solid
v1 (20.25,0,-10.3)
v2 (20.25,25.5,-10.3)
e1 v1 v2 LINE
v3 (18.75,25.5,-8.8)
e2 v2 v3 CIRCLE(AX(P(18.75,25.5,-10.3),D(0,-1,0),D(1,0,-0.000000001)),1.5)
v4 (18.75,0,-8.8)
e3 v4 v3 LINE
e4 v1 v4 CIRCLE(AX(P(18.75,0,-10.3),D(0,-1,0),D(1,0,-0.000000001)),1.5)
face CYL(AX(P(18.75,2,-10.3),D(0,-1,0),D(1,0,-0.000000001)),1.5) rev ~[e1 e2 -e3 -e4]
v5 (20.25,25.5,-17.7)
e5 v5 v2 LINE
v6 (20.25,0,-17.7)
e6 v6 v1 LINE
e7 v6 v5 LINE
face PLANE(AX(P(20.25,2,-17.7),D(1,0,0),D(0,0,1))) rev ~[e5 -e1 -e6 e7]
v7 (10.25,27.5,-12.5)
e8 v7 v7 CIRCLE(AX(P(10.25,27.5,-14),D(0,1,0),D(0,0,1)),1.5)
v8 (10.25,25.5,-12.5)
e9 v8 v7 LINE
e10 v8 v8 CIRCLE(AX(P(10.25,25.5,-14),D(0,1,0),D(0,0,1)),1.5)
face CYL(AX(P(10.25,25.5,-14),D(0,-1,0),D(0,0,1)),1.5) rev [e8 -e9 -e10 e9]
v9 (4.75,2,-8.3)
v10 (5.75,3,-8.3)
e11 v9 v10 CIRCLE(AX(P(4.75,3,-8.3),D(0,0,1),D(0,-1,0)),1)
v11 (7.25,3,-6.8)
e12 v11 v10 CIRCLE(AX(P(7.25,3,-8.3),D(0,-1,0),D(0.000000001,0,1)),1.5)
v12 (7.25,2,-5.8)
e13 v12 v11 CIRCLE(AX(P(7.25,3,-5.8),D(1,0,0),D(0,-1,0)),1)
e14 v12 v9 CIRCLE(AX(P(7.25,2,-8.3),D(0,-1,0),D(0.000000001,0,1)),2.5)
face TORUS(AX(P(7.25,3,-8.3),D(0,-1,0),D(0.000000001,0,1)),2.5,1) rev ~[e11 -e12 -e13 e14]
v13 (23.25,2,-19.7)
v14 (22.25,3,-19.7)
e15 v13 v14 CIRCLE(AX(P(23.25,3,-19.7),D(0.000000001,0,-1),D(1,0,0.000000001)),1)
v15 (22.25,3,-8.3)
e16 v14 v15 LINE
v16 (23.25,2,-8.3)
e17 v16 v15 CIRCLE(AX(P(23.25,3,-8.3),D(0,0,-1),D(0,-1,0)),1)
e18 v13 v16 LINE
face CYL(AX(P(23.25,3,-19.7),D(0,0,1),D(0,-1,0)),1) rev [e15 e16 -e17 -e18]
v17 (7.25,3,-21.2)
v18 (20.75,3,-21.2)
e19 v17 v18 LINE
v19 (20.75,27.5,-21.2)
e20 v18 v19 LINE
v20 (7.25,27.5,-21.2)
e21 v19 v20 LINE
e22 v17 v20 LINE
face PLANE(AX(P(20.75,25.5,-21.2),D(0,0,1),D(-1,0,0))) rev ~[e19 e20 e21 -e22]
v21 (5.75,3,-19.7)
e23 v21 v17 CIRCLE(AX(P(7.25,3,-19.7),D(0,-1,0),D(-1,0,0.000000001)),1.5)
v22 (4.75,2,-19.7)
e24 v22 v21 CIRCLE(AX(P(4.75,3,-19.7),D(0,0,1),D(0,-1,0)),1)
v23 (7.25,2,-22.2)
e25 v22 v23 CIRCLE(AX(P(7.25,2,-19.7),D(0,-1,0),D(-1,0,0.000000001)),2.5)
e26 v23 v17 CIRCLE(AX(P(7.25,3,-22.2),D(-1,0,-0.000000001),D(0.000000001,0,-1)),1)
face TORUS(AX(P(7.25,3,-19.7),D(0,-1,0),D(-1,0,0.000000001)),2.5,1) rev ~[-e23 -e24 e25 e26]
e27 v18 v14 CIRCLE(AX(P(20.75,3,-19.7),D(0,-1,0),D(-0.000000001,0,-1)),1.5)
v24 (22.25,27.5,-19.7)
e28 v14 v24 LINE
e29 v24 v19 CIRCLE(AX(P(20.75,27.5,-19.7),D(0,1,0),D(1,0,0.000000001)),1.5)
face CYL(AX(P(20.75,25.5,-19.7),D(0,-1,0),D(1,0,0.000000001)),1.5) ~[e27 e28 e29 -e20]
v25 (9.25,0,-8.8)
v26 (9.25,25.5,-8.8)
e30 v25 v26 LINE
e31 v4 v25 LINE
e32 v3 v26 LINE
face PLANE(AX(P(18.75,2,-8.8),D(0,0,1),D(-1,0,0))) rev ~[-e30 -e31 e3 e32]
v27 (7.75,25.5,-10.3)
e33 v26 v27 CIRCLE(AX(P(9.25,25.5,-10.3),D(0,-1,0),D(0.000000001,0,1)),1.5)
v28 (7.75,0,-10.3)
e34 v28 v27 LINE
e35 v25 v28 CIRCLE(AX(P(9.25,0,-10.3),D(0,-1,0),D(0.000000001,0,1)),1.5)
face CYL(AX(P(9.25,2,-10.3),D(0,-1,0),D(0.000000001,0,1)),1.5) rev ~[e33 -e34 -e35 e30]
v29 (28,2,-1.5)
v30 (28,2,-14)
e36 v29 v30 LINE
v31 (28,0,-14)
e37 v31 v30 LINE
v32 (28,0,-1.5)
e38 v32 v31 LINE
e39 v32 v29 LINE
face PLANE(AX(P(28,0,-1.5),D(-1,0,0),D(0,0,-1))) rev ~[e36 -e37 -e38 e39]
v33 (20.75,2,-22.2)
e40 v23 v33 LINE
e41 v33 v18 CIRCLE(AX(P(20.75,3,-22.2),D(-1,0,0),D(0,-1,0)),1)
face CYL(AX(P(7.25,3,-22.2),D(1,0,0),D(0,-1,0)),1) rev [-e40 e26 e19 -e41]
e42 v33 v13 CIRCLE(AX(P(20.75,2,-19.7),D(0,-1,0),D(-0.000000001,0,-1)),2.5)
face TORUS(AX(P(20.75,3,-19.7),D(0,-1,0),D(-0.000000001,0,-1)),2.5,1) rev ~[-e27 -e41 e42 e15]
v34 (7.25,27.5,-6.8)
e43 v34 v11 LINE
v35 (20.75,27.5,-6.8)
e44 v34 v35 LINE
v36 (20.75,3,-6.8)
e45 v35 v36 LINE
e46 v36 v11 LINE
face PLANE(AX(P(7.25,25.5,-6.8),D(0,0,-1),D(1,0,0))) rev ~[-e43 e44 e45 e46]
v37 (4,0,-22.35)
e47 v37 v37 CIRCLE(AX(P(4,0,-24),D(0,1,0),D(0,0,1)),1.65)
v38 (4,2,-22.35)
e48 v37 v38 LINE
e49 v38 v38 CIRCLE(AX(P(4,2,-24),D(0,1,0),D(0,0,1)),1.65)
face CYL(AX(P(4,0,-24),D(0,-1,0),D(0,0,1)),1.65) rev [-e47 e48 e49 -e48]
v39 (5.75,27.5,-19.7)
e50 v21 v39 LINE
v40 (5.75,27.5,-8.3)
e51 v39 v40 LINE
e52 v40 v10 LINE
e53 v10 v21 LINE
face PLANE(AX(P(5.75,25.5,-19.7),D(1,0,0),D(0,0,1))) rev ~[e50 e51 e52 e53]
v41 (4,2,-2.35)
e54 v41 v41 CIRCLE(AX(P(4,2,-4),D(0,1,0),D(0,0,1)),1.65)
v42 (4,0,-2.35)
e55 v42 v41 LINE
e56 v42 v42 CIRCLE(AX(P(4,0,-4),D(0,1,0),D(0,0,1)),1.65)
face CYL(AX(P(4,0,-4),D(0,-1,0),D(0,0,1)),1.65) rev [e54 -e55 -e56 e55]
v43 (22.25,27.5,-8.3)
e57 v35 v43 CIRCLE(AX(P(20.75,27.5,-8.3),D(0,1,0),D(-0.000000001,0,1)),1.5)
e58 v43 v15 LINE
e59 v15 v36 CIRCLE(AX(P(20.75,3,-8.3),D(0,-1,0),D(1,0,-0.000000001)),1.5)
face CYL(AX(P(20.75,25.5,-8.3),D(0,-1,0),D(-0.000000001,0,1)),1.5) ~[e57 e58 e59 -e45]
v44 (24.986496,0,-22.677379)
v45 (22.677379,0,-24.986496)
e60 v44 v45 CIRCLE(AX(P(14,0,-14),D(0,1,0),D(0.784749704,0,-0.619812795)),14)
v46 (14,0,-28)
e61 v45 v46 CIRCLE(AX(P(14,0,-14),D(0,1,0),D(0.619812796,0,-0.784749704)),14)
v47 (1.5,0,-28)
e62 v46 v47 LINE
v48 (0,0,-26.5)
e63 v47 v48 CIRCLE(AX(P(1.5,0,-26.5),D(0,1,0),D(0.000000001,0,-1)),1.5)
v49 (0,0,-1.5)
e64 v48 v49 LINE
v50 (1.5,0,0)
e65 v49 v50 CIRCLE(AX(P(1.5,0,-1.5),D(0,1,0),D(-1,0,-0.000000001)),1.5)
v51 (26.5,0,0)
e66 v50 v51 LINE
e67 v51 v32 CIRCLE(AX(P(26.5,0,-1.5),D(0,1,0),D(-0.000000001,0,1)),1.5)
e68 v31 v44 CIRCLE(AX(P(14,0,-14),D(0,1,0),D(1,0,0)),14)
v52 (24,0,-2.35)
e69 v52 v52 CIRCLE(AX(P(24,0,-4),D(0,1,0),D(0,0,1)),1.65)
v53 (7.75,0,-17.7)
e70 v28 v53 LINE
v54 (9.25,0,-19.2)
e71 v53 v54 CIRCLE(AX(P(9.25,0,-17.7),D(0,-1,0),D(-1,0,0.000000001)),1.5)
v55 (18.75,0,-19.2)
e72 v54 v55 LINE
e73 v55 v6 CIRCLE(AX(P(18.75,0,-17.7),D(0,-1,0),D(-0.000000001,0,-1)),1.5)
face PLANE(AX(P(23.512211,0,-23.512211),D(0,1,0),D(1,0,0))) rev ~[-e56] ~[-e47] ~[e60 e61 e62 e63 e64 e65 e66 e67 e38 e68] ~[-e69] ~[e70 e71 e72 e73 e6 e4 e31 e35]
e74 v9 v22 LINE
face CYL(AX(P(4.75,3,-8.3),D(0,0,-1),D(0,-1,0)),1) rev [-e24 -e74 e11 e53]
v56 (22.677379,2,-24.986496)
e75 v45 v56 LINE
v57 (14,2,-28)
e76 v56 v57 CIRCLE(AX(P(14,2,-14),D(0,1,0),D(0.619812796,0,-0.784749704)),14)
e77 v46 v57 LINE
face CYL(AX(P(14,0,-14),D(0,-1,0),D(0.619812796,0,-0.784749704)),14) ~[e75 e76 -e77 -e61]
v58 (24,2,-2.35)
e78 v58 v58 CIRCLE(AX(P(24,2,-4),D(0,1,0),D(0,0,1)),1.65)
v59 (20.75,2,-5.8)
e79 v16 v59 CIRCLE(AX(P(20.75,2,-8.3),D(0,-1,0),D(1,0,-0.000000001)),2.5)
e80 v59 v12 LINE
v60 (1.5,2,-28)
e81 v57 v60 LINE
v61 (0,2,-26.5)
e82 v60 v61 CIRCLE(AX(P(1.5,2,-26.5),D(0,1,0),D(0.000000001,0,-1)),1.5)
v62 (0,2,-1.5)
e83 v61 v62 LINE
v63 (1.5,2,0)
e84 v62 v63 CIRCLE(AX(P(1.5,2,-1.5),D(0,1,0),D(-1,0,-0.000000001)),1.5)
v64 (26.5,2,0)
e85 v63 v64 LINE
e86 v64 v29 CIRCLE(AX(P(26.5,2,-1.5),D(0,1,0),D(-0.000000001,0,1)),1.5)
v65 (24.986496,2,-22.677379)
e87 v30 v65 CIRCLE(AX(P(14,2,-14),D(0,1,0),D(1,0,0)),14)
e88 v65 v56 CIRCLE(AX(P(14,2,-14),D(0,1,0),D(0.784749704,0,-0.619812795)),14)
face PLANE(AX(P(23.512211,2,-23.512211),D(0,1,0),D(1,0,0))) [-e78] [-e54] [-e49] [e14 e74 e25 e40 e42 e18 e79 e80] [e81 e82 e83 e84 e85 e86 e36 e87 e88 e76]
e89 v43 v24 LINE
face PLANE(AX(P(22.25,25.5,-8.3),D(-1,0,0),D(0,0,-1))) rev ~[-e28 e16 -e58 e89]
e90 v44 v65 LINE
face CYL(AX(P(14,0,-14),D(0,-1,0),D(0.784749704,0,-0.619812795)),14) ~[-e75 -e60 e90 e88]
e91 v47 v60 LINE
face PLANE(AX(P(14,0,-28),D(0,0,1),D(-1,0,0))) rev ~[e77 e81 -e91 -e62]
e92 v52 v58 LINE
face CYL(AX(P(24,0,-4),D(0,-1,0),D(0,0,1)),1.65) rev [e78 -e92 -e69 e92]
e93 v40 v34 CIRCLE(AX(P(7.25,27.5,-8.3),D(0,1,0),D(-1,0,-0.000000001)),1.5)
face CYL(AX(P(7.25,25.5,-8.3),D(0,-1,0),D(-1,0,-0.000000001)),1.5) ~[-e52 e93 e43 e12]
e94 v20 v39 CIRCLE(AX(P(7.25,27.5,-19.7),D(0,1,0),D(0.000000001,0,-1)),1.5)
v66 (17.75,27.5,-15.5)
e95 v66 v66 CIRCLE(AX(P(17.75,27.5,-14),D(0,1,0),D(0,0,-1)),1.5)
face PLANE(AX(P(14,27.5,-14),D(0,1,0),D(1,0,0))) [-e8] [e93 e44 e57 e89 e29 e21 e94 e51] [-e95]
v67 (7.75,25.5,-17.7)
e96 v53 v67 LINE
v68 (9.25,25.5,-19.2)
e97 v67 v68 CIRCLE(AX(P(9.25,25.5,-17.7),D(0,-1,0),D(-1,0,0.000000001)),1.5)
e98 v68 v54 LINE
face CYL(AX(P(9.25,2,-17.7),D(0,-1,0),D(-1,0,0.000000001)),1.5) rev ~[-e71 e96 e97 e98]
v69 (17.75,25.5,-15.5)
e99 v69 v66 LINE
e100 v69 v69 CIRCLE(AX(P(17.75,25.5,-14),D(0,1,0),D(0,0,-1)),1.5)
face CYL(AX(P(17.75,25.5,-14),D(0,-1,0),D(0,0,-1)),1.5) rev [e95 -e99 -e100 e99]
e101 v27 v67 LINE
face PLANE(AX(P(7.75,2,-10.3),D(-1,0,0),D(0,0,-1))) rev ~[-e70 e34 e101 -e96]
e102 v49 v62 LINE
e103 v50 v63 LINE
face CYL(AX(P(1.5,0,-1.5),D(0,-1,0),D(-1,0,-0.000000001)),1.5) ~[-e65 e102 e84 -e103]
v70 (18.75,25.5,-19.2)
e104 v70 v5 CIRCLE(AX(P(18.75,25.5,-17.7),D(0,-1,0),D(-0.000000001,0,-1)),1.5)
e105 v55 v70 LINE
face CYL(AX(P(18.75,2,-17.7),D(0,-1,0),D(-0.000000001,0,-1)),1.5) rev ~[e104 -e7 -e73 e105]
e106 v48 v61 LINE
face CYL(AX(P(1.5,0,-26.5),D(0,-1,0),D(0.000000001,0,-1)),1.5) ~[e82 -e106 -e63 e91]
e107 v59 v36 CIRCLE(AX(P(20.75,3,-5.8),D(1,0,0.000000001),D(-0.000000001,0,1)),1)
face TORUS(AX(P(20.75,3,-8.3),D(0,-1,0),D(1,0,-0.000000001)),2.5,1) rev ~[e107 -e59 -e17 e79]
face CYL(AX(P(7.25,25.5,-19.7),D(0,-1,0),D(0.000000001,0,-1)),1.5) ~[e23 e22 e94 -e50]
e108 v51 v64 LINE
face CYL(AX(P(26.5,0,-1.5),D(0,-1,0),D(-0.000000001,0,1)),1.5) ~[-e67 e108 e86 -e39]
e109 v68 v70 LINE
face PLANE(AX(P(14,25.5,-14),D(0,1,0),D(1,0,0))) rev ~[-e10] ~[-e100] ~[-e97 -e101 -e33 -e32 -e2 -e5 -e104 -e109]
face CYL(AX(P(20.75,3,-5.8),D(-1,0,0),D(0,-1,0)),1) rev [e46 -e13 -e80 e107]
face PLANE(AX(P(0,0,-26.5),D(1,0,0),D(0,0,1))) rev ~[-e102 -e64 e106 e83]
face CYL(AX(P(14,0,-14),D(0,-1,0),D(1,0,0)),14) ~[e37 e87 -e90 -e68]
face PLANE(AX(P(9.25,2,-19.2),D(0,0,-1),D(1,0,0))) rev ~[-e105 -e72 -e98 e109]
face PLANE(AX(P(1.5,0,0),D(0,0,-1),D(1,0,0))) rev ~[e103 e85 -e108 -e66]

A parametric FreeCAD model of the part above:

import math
import FreeCAD as App
import Part
import Sketcher
from FreeCAD import Vector
Q = App.Units.Quantity


def edges_at(feature, points):
    """Names of the edges that pass closest to the given points."""
    edges = feature.Shape.Edges
    near = lambda p: min(range(len(edges)), key=lambda i: edges[i].distToShape(Part.Vertex(*p))[0])
    return sorted({f"Edge{near(p) + 1}" for p in points})

doc = App.newDocument("Part")
body = doc.addObject("PartDesign::Body", "Body")

sketch1 = doc.addObject("Sketcher::SketchObject", "Sketch")
body.addObject(sketch1)
sketch1.AttachmentSupport = (doc.XZ_Plane, [""])
sketch1.MapMode = "FlatFace"
sketch1.addGeometry([
    Part.ArcOfCircle(Part.Circle(Vector(1.5, -1.5, 0), Vector(0, 0, 1), 1.5), math.radians(90), math.radians(180)),
    Part.LineSegment(Vector(1.5, 0, 0), Vector(26.5, 0, 0)),
    Part.ArcOfCircle(Part.Circle(Vector(26.5, -1.5, 0), Vector(0, 0, 1), 1.5), math.radians(0), math.radians(90)),
    Part.LineSegment(Vector(28, -1.5, 0), Vector(28, -14, 0)),
    Part.ArcOfCircle(Part.Circle(Vector(14, -14, 0), Vector(0, 0, 1), 14), math.radians(-38), math.radians(0)),
    Part.ArcOfCircle(Part.Circle(Vector(14, -14, 0), Vector(0, 0, 1), 14), math.radians(-51.7), math.radians(-38.3)),
    Part.ArcOfCircle(Part.Circle(Vector(14, -14, 0), Vector(0, 0, 1), 14), math.radians(-90), math.radians(-52)),
    Part.LineSegment(Vector(14, -28, 0), Vector(1.5, -28, 0)),
    Part.ArcOfCircle(Part.Circle(Vector(1.5, -26.5, 0), Vector(0, 0, 1), 1.5), math.radians(180), math.radians(270)),
    Part.LineSegment(Vector(0, -26.5, 0), Vector(0, -1.5, 0)),
    Part.Circle(Vector(4, -4, 0), Vector(0, 0, 1), 1.6),
    Part.Circle(Vector(24, -4, 0), Vector(0, 0, 1), 1.6),
    Part.Circle(Vector(4, -24, 0), Vector(0, 0, 1), 1.6),
    Part.ArcOfCircle(Part.Circle(Vector(18.8, -10.3, 0), Vector(0, 0, 1), 1.5), math.radians(0), math.radians(90)),
    Part.LineSegment(Vector(18.8, -8.8, 0), Vector(9.2, -8.8, 0)),
    Part.ArcOfCircle(Part.Circle(Vector(9.2, -10.3, 0), Vector(0, 0, 1), 1.5), math.radians(90), math.radians(180)),
    Part.LineSegment(Vector(7.8, -10.3, 0), Vector(7.8, -17.7, 0)),
    Part.ArcOfCircle(Part.Circle(Vector(9.2, -17.7, 0), Vector(0, 0, 1), 1.5), math.radians(180), math.radians(270)),
    Part.LineSegment(Vector(9.2, -19.2, 0), Vector(18.8, -19.2, 0)),
    Part.ArcOfCircle(Part.Circle(Vector(18.8, -17.7, 0), Vector(0, 0, 1), 1.5), math.radians(-90), math.radians(0)),
    Part.LineSegment(Vector(20.2, -17.7, 0), Vector(20.2, -10.3, 0)),
], False)
sketch1.addConstraint([
    Sketcher.Constraint("Tangent", 0, 1, 1, 1),
    Sketcher.Constraint("Tangent", 1, 2, 2, 2),
    Sketcher.Constraint("Tangent", 2, 1, 3, 1),
    Sketcher.Constraint("Tangent", 3, 2, 4, 2),
    Sketcher.Constraint("Tangent", 4, 1, 5, 2),
    Sketcher.Constraint("Tangent", 5, 1, 6, 2),
    Sketcher.Constraint("Tangent", 6, 1, 7, 1),
    Sketcher.Constraint("Tangent", 7, 2, 8, 2),
    Sketcher.Constraint("Tangent", 8, 1, 9, 1),
    Sketcher.Constraint("Tangent", 9, 2, 0, 2),
    Sketcher.Constraint("Tangent", 13, 2, 14, 1),
    Sketcher.Constraint("Tangent", 14, 2, 15, 1),
    Sketcher.Constraint("Tangent", 15, 2, 16, 1),
    Sketcher.Constraint("Tangent", 16, 2, 17, 1),
    Sketcher.Constraint("Tangent", 17, 2, 18, 1),
    Sketcher.Constraint("Tangent", 18, 2, 19, 1),
    Sketcher.Constraint("Tangent", 19, 2, 20, 1),
    Sketcher.Constraint("Tangent", 20, 2, 13, 1),
    Sketcher.Constraint("Horizontal", 1),
    Sketcher.Constraint("Vertical", 3),
    Sketcher.Constraint("Horizontal", 7),
    Sketcher.Constraint("Vertical", 9),
    Sketcher.Constraint("Horizontal", 14),
    Sketcher.Constraint("Vertical", 16),
    Sketcher.Constraint("Horizontal", 18),
    Sketcher.Constraint("Vertical", 20),
    Sketcher.Constraint("Coincident", 6, 3, 4, 3),
    Sketcher.Constraint("Equal", 0, 2),
    Sketcher.Constraint("Equal", 2, 8),
    Sketcher.Constraint("Equal", 10, 11),
    Sketcher.Constraint("Equal", 11, 12),
    Sketcher.Constraint("Equal", 8, 13),
    Sketcher.Constraint("Equal", 13, 15),
    Sketcher.Constraint("Equal", 15, 17),
    Sketcher.Constraint("Equal", 17, 19),
    Sketcher.Constraint("PointOnObject", 0, 1, -1),
    Sketcher.Constraint("PointOnObject", 8, 1, -2),
    Sketcher.Constraint("Horizontal", 10, 3, 11, 3),
    Sketcher.Constraint("Vertical", 10, 3, 12, 3),
    Sketcher.Constraint("Equal", 7, 3),
    Sketcher.Constraint("Radius", 4, Q("14 mm")),
    Sketcher.Constraint("Diameter", 10, Q("3.3 mm")),
    Sketcher.Constraint("Radius", 0, Q("1.5 mm")),
    Sketcher.Constraint("DistanceX", 1, 1, 1, 2, Q("25 mm")),
    Sketcher.Constraint("DistanceX", 14, 2, 14, 1, Q("9.5 mm")),
    Sketcher.Constraint("DistanceY", 16, 2, 16, 1, Q("7.4 mm")),
    Sketcher.Constraint("DistanceX", -1, 1, 10, 3, Q("4 mm")),
    Sketcher.Constraint("DistanceY", 10, 3, -1, 1, Q("4 mm")),
    Sketcher.Constraint("DistanceX", -1, 1, 11, 3, Q("24 mm")),
    Sketcher.Constraint("DistanceY", 12, 3, -1, 1, Q("24 mm")),
    Sketcher.Constraint("DistanceY", 13, 3, -1, 1, Q("10.3 mm")),
    Sketcher.Constraint("DistanceX", -1, 1, 13, 3, Q("18.75 mm")),
    Sketcher.Constraint("DistanceY", 4, 1, -1, 1, Q("22.677379 mm")),
    Sketcher.Constraint("DistanceX", -1, 1, 5, 1, Q("22.677379 mm")),
])
pad1 = doc.addObject("PartDesign::Pad", "Pad")
body.addObject(pad1)
pad1.Profile = sketch1
pad1.Length = 2
pad1.Reversed = True

sketch2 = doc.addObject("Sketcher::SketchObject", "Sketch001")
body.addObject(sketch2)
sketch2.AttachmentSupport = (doc.XZ_Plane, [""])
sketch2.MapMode = "FlatFace"
sketch2.AttachmentOffset = App.Placement(Vector(0, 0, -2), App.Rotation())
sketch2.addGeometry([
    Part.LineSegment(Vector(20.8, -21.2, 0), Vector(7.2, -21.2, 0)),
    Part.ArcOfCircle(Part.Circle(Vector(7.2, -19.7, 0), Vector(0, 0, 1), 1.5), math.radians(180), math.radians(270)),
    Part.LineSegment(Vector(5.8, -19.7, 0), Vector(5.8, -8.3, 0)),
    Part.ArcOfCircle(Part.Circle(Vector(7.2, -8.3, 0), Vector(0, 0, 1), 1.5), math.radians(90), math.radians(180)),
    Part.LineSegment(Vector(7.2, -6.8, 0), Vector(20.8, -6.8, 0)),
    Part.ArcOfCircle(Part.Circle(Vector(20.8, -8.3, 0), Vector(0, 0, 1), 1.5), math.radians(0), math.radians(90)),
    Part.LineSegment(Vector(22.2, -8.3, 0), Vector(22.2, -19.7, 0)),
    Part.ArcOfCircle(Part.Circle(Vector(20.8, -19.7, 0), Vector(0, 0, 1), 1.5), math.radians(-90), math.radians(0)),
    Part.LineSegment(Vector(9.2, -19.2, 0), Vector(18.8, -19.2, 0)),
    Part.ArcOfCircle(Part.Circle(Vector(18.8, -17.7, 0), Vector(0, 0, 1), 1.5), math.radians(-90), math.radians(0)),
    Part.LineSegment(Vector(20.2, -17.7, 0), Vector(20.2, -10.3, 0)),
    Part.ArcOfCircle(Part.Circle(Vector(18.8, -10.3, 0), Vector(0, 0, 1), 1.5), math.radians(0), math.radians(90)),
    Part.LineSegment(Vector(18.8, -8.8, 0), Vector(9.2, -8.8, 0)),
    Part.ArcOfCircle(Part.Circle(Vector(9.2, -10.3, 0), Vector(0, 0, 1), 1.5), math.radians(90), math.radians(180)),
    Part.LineSegment(Vector(7.8, -10.3, 0), Vector(7.8, -17.7, 0)),
    Part.ArcOfCircle(Part.Circle(Vector(9.2, -17.7, 0), Vector(0, 0, 1), 1.5), math.radians(180), math.radians(270)),
], False)
sketch2.addConstraint([
    Sketcher.Constraint("Tangent", 0, 2, 1, 2),
    Sketcher.Constraint("Tangent", 1, 1, 2, 1),
    Sketcher.Constraint("Tangent", 2, 2, 3, 2),
    Sketcher.Constraint("Tangent", 3, 1, 4, 1),
    Sketcher.Constraint("Tangent", 4, 2, 5, 2),
    Sketcher.Constraint("Tangent", 5, 1, 6, 1),
    Sketcher.Constraint("Tangent", 6, 2, 7, 2),
    Sketcher.Constraint("Tangent", 7, 1, 0, 1),
    Sketcher.Constraint("Tangent", 8, 2, 9, 1),
    Sketcher.Constraint("Tangent", 9, 2, 10, 1),
    Sketcher.Constraint("Tangent", 10, 2, 11, 1),
    Sketcher.Constraint("Tangent", 11, 2, 12, 1),
    Sketcher.Constraint("Tangent", 12, 2, 13, 1),
    Sketcher.Constraint("Tangent", 13, 2, 14, 1),
    Sketcher.Constraint("Tangent", 14, 2, 15, 1),
    Sketcher.Constraint("Tangent", 15, 2, 8, 1),
    Sketcher.Constraint("Horizontal", 0),
    Sketcher.Constraint("Vertical", 2),
    Sketcher.Constraint("Horizontal", 4),
    Sketcher.Constraint("Vertical", 6),
    Sketcher.Constraint("Horizontal", 8),
    Sketcher.Constraint("Vertical", 10),
    Sketcher.Constraint("Horizontal", 12),
    Sketcher.Constraint("Vertical", 14),
    Sketcher.Constraint("Equal", 1, 3),
    Sketcher.Constraint("Equal", 3, 5),
    Sketcher.Constraint("Equal", 5, 7),
    Sketcher.Constraint("Equal", 7, 9),
    Sketcher.Constraint("Equal", 9, 11),
    Sketcher.Constraint("Equal", 11, 13),
    Sketcher.Constraint("Equal", 13, 15),
    Sketcher.Constraint("Radius", 1, Q("1.5 mm")),
    Sketcher.Constraint("DistanceX", 0, 2, 0, 1, Q("13.5 mm")),
    Sketcher.Constraint("DistanceX", 8, 1, 8, 2, Q("9.5 mm")),
    Sketcher.Constraint("DistanceY", 2, 1, 2, 2, Q("11.4 mm")),
    Sketcher.Constraint("DistanceY", 10, 1, 10, 2, Q("7.4 mm")),
    Sketcher.Constraint("DistanceX", 9, 3, 7, 3, Q("2 mm")),
    Sketcher.Constraint("DistanceY", 7, 3, 9, 3, Q("2 mm")),
    Sketcher.Constraint("DistanceY", 1, 3, -1, 1, Q("19.7 mm")),
    Sketcher.Constraint("DistanceX", -1, 1, 1, 3, Q("7.25 mm")),
])
pad2 = doc.addObject("PartDesign::Pad", "Pad001")
body.addObject(pad2)
pad2.Profile = sketch2
pad2.Length = 23.5
pad2.Reversed = True

sketch3 = doc.addObject("Sketcher::SketchObject", "Sketch002")
body.addObject(sketch3)
sketch3.AttachmentSupport = (doc.XZ_Plane, [""])
sketch3.MapMode = "FlatFace"
sketch3.AttachmentOffset = App.Placement(Vector(0, 0, -25.5), App.Rotation())
sketch3.addGeometry([
    Part.LineSegment(Vector(22.2, -8.3, 0), Vector(22.2, -19.7, 0)),
    Part.ArcOfCircle(Part.Circle(Vector(20.8, -19.7, 0), Vector(0, 0, 1), 1.5), math.radians(-90), math.radians(0)),
    Part.LineSegment(Vector(20.8, -21.2, 0), Vector(7.2, -21.2, 0)),
    Part.ArcOfCircle(Part.Circle(Vector(7.2, -19.7, 0), Vector(0, 0, 1), 1.5), math.radians(180), math.radians(270)),
    Part.LineSegment(Vector(5.8, -19.7, 0), Vector(5.8, -8.3, 0)),
    Part.ArcOfCircle(Part.Circle(Vector(7.2, -8.3, 0), Vector(0, 0, 1), 1.5), math.radians(90), math.radians(180)),
    Part.LineSegment(Vector(7.2, -6.8, 0), Vector(20.8, -6.8, 0)),
    Part.ArcOfCircle(Part.Circle(Vector(20.8, -8.3, 0), Vector(0, 0, 1), 1.5), math.radians(0), math.radians(90)),
    Part.Circle(Vector(10.2, -14, 0), Vector(0, 0, 1), 1.5),
    Part.Circle(Vector(17.8, -14, 0), Vector(0, 0, 1), 1.5),
], False)
sketch3.addConstraint([
    Sketcher.Constraint("Tangent", 0, 2, 1, 2),
    Sketcher.Constraint("Tangent", 1, 1, 2, 1),
    Sketcher.Constraint("Tangent", 2, 2, 3, 2),
    Sketcher.Constraint("Tangent", 3, 1, 4, 1),
    Sketcher.Constraint("Tangent", 4, 2, 5, 2),
    Sketcher.Constraint("Tangent", 5, 1, 6, 1),
    Sketcher.Constraint("Tangent", 6, 2, 7, 2),
    Sketcher.Constraint("Tangent", 7, 1, 0, 1),
    Sketcher.Constraint("Vertical", 0),
    Sketcher.Constraint("Horizontal", 2),
    Sketcher.Constraint("Vertical", 4),
    Sketcher.Constraint("Horizontal", 6),
    Sketcher.Constraint("Equal", 1, 3),
    Sketcher.Constraint("Equal", 3, 5),
    Sketcher.Constraint("Equal", 5, 7),
    Sketcher.Constraint("Equal", 7, 8),
    Sketcher.Constraint("Equal", 8, 9),
    Sketcher.Constraint("Horizontal", 8, 3, 9, 3),
    Sketcher.Constraint("Diameter", 8, Q("3 mm")),
    Sketcher.Constraint("DistanceX", 2, 2, 2, 1, Q("13.5 mm")),
    Sketcher.Constraint("DistanceY", 0, 2, 0, 1, Q("11.4 mm")),
    Sketcher.Constraint("DistanceY", 8, 3, -1, 1, Q("14 mm")),
    Sketcher.Constraint("DistanceX", 3, 3, 8, 3, Q("3 mm")),
    Sketcher.Constraint("DistanceX", 9, 3, 1, 3, Q("3 mm")),
    Sketcher.Constraint("DistanceY", 1, 3, -1, 1, Q("19.7 mm")),
    Sketcher.Constraint("DistanceX", -1, 1, 1, 3, Q("20.75 mm")),
])
pad3 = doc.addObject("PartDesign::Pad", "Pad002")
body.addObject(pad3)
pad3.Profile = sketch3
pad3.Length = 2
pad3.Reversed = True
doc.recompute()

fillet = doc.addObject("PartDesign::Fillet", "Fillet")
body.addObject(fillet)
fillet.Base = (pad3, edges_at(pad3, [
    (5.75, 2, -14),
    (14, 2, -21.2),
    (22.25, 2, -14),
    (14, 2, -6.8),
    (6.189, 2, -7.239),
    (21.811, 2, -7.239),
    (21.811, 2, -20.761),
    (6.189, 2, -20.761),
]))
fillet.Radius = 1

doc.recompute()
